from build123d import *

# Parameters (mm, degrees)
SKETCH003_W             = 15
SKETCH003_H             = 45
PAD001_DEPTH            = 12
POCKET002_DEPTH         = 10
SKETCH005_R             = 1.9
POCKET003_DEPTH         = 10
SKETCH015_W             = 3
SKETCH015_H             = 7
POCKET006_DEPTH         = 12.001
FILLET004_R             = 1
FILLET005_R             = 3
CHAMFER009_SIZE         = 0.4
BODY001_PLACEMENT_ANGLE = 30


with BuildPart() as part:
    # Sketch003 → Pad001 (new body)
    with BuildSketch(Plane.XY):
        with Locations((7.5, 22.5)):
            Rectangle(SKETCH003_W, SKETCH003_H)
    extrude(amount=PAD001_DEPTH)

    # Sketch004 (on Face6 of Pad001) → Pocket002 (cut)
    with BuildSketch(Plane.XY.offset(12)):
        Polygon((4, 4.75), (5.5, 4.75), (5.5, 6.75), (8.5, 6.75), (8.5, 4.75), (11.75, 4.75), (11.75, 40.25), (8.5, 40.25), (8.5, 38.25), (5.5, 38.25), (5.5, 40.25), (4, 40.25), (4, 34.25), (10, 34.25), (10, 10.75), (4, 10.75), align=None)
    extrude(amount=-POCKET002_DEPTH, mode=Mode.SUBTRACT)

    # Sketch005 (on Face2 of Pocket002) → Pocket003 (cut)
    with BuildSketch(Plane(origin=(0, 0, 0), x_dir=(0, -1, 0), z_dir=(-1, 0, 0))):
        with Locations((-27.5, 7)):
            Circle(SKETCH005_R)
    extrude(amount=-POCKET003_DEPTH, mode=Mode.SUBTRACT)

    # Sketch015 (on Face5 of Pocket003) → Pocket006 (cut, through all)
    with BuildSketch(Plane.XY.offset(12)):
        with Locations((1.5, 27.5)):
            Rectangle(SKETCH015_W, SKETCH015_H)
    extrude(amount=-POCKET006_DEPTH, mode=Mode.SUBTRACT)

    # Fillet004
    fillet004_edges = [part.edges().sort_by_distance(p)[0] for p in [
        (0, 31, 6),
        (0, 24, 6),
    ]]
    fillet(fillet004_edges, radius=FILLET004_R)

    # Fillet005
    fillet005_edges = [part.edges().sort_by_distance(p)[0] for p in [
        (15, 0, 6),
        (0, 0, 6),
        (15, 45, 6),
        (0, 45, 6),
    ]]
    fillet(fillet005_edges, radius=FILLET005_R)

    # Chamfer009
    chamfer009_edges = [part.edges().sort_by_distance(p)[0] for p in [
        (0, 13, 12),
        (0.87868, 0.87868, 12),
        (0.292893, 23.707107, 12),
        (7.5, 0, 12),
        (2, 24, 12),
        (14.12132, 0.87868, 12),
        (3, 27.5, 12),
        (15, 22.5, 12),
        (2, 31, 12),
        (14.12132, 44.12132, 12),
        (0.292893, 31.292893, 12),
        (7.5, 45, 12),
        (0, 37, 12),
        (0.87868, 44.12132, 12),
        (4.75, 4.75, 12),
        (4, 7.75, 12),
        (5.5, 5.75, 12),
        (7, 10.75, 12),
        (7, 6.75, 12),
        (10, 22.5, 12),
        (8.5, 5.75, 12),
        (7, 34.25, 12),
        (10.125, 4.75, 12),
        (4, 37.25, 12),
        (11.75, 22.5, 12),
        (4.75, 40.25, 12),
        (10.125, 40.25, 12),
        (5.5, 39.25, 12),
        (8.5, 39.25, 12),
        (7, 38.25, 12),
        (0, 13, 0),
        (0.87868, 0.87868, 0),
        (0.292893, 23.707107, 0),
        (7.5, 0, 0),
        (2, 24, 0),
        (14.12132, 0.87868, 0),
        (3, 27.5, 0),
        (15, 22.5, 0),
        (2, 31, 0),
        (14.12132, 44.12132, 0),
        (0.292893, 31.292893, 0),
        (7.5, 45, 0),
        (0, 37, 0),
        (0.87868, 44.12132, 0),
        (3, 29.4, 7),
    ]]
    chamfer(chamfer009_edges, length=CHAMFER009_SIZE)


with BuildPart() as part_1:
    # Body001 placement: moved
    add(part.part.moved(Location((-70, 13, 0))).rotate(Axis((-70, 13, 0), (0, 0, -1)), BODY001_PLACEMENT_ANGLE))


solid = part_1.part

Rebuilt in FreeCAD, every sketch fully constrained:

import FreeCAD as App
import Part
import Sketcher


def edges_at(feature, points):
    """Names of the edges that pass closest to the given points."""
    edges = feature.Shape.Edges
    near = lambda p: min(range(len(edges)), key=lambda i: edges[i].distToShape(Part.Vertex(*p))[0])
    return sorted({f"Edge{near(p) + 1}" for p in points})


def add_polygon(sketch, points):
    """Adds a closed chain of lines whose ends are joined by coincident constraints."""
    first, n = sketch.GeometryCount, len(points)
    for a, b in zip(points, points[1:] + points[:1]):
        sketch.addGeometry(Part.LineSegment(App.Vector(*a, 0), App.Vector(*b, 0)), False)
    for i in range(n):
        sketch.addConstraint(Sketcher.Constraint("Coincident", first + i, 2, first + (i + 1) % n, 1))

doc = App.newDocument("Part")
params = doc.addObject("Spreadsheet::Sheet", "Params")
for row, (alias, value) in enumerate([
    ("sketch1_width", "15 mm"),
    ("sketch1_height", "45 mm"),
    ("pad1_length", "12 mm"),
    ("sketch2_width", "3 mm"),
    ("sketch2_width2", "6 mm"),
    ("sketch2_height", "2 mm"),
    ("sketch2_width3", "1.5 mm"),
    ("sketch2_height2", "35.5 mm"),
    ("pocket1_length", "10 mm"),
    ("sketch3_diameter", "3.8 mm"),
    ("pocket2_length", "10 mm"),
    ("sketch4_width", "3 mm"),
    ("sketch4_height", "7 mm"),
    ("fillet_radius", "1 mm"),
    ("fillet2_radius", "3 mm"),
    ("chamfer_size", "0.4 mm"),
], start=1):
    params.set(f"A{row}", alias)
    params.set(f"B{row}", "=" + value)
    params.setAlias(f"B{row}", alias)

body = doc.addObject("PartDesign::Body", "Body")

sketch1 = body.newObject("Sketcher::SketchObject", "Sketch")
sketch1.AttachmentSupport = (doc.getObject("XY_Plane"), [""])
sketch1.MapMode = "FlatFace"
add_polygon(sketch1, [(0, 45), (0, 0), (15, 0), (15, 45)])
sketch1.addConstraint([
    Sketcher.Constraint("Vertical", 0),
    Sketcher.Constraint("Horizontal", 1),
    Sketcher.Constraint("Vertical", 2),
    Sketcher.Constraint("Horizontal", 3),
    Sketcher.Constraint("Coincident", 0, 2, -1, 1),
    Sketcher.Constraint("DistanceX", 1, 1, 1, 2, 15.0),
    Sketcher.Constraint("DistanceY", 0, 2, 0, 1, 45.0),
])
sketch1.setExpression("Constraints[9]", "Params.sketch1_width")
sketch1.setExpression("Constraints[10]", "Params.sketch1_height")
pad1 = body.newObject("PartDesign::Pad", "Pad")
pad1.Profile = sketch1
pad1.setExpression("Length", "Params.pad1_length")

sketch2 = body.newObject("Sketcher::SketchObject", "Sketch001")
sketch2.AttachmentSupport = (doc.getObject("XY_Plane"), [""])
sketch2.MapMode = "FlatFace"
sketch2.AttachmentOffset = App.Placement(App.Vector(0, 0, 12), App.Rotation())
add_polygon(sketch2, [(4, 4.8), (5.5, 4.8), (5.5, 6.8), (8.5, 6.8), (8.5, 4.8), (11.8, 4.8), (11.8, 40.2), (8.5, 40.2), (8.5, 38.2), (5.5, 38.2), (5.5, 40.2), (4, 40.2), (4, 34.2), (10, 34.2), (10, 10.8), (4, 10.8)])
sketch2.addConstraint([
    Sketcher.Constraint("Horizontal", 0),
    Sketcher.Constraint("Vertical", 1),
    Sketcher.Constraint("Horizontal", 2),
    Sketcher.Constraint("Vertical", 3),
    Sketcher.Constraint("Horizontal", 4),
    Sketcher.Constraint("Vertical", 5),
    Sketcher.Constraint("Horizontal", 6),
    Sketcher.Constraint("Vertical", 7),
    Sketcher.Constraint("Horizontal", 8),
    Sketcher.Constraint("Vertical", 9),
    Sketcher.Constraint("Horizontal", 10),
    Sketcher.Constraint("Vertical", 11),
    Sketcher.Constraint("Horizontal", 12),
    Sketcher.Constraint("Vertical", 13),
    Sketcher.Constraint("Horizontal", 14),
    Sketcher.Constraint("Vertical", 15),
    Sketcher.Constraint("Horizontal", 0, 2, 3, 2),
    Sketcher.Constraint("Horizontal", 6, 2, 9, 2),
    Sketcher.Constraint("Vertical", 3, 2, 6, 2),
    Sketcher.Constraint("Vertical", 1, 2, 8, 2),
    Sketcher.Constraint("Vertical", 11, 2, 14, 2),
    Sketcher.Constraint("Equal", 3, 7),
    Sketcher.Constraint("Equal", 14, 11),
    Sketcher.Constraint("Equal", 11, 15),
    Sketcher.Constraint("DistanceX", 2, 1, 2, 2, 3.0),
    Sketcher.Constraint("DistanceX", 12, 1, 12, 2, 6.0),
    Sketcher.Constraint("DistanceY", 1, 1, 1, 2, 2.0),
    Sketcher.Constraint("DistanceX", 0, 1, 0, 2, 1.5),
    Sketcher.Constraint("DistanceY", 5, 1, 5, 2, 35.5),
    Sketcher.Constraint("DistanceX", -1, 1, 10, 2, 4.0),
    Sketcher.Constraint("DistanceX", 4, 1, 4, 2, 3.25),
    Sketcher.Constraint("DistanceY", -1, 1, 0, 2, 4.75),
])
sketch2.setExpression("Constraints[40]", "Params.sketch2_width")
sketch2.setExpression("Constraints[41]", "Params.sketch2_width2")
sketch2.setExpression("Constraints[42]", "Params.sketch2_height")
sketch2.setExpression("Constraints[43]", "Params.sketch2_width3")
sketch2.setExpression("Constraints[44]", "Params.sketch2_height2")
pocket1 = body.newObject("PartDesign::Pocket", "Pocket")
pocket1.Profile = sketch2
pocket1.setExpression("Length", "Params.pocket1_length")

sketch3 = body.newObject("Sketcher::SketchObject", "Sketch002")
sketch3.AttachmentSupport = (doc.getObject("YZ_Plane"), [""])
sketch3.MapMode = "FlatFace"
sketch3.addGeometry(Part.Circle(App.Vector(27.5, 7, 0), App.Vector(0, 0, 1), 1.9), False)
sketch3.addConstraint([
    Sketcher.Constraint("Diameter", 0, 3.8),
    Sketcher.Constraint("DistanceY", -1, 1, 0, 3, 7.0),
    Sketcher.Constraint("DistanceX", -1, 1, 0, 3, 27.5),
])
sketch3.setExpression("Constraints[0]", "Params.sketch3_diameter")
pocket2 = body.newObject("PartDesign::Pocket", "Pocket001")
pocket2.Profile = sketch3
pocket2.setExpression("Length", "Params.pocket2_length")
pocket2.Reversed = True

sketch4 = body.newObject("Sketcher::SketchObject", "Sketch003")
sketch4.AttachmentSupport = (doc.getObject("XY_Plane"), [""])
sketch4.MapMode = "FlatFace"
sketch4.AttachmentOffset = App.Placement(App.Vector(0, 0, 12), App.Rotation())
add_polygon(sketch4, [(0, 31), (0, 24), (3, 24), (3, 31)])
sketch4.addConstraint([
    Sketcher.Constraint("Vertical", 0),
    Sketcher.Constraint("Horizontal", 1),
    Sketcher.Constraint("Vertical", 2),
    Sketcher.Constraint("Horizontal", 3),
    Sketcher.Constraint("PointOnObject", 0, 2, -2),
    Sketcher.Constraint("DistanceX", 1, 1, 1, 2, 3.0),
    Sketcher.Constraint("DistanceY", 0, 2, 0, 1, 7.0),
    Sketcher.Constraint("DistanceY", -1, 1, 0, 2, 24.0),
])
sketch4.setExpression("Constraints[9]", "Params.sketch4_width")
sketch4.setExpression("Constraints[10]", "Params.sketch4_height")
pocket3 = body.newObject("PartDesign::Pocket", "Pocket002")
pocket3.Profile = sketch4
pocket3.Type = "ThroughAll"
doc.recompute()

fillet = body.newObject("PartDesign::Fillet", "Fillet")
fillet.Base = (pocket3, edges_at(pocket3, [(0, 31, 6), (0, 24, 6)]))
fillet.setExpression("Radius", "Params.fillet_radius")
doc.recompute()

fillet2 = body.newObject("PartDesign::Fillet", "Fillet001")
fillet2.Base = (fillet, edges_at(fillet, [
    (15, 0, 6),
    (0, 0, 6),
    (15, 45, 6),
    (0, 45, 6),
]))
fillet2.setExpression("Radius", "Params.fillet2_radius")
doc.recompute()

chamfer = body.newObject("PartDesign::Chamfer", "Chamfer")
chamfer.Base = (fillet2, edges_at(fillet2, [
    (0, 13, 12),
    (0.879, 0.879, 12),
    (0.293, 23.707, 12),
    (7.5, 0, 12),
    (2, 24, 12),
    (14.121, 0.879, 12),
    (3, 27.5, 12),
    (15, 22.5, 12),
    (2, 31, 12),
    (14.121, 44.121, 12),
    (0.293, 31.293, 12),
    (7.5, 45, 12),
    (0, 37, 12),
    (0.879, 44.121, 12),
    (4.75, 4.75, 12),
    (4, 7.75, 12),
    (5.5, 5.75, 12),
    (7, 10.75, 12),
    (7, 6.75, 12),
    (10, 22.5, 12),
    (8.5, 5.75, 12),
    (7, 34.25, 12),
    (10.125, 4.75, 12),
    (4, 37.25, 12),
    (11.75, 22.5, 12),
    (4.75, 40.25, 12),
    (10.125, 40.25, 12),
    (5.5, 39.25, 12),
    (8.5, 39.25, 12),
    (7, 38.25, 12),
    (0, 13, 0),
    (0.879, 0.879, 0),
    (0.293, 23.707, 0),
    (7.5, 0, 0),
    (2, 24, 0),
    (14.121, 0.879, 0),
    (3, 27.5, 0),
    (15, 22.5, 0),
    (2, 31, 0),
    (14.121, 44.121, 0),
    (0.293, 31.293, 0),
    (7.5, 45, 0),
    (0, 37, 0),
    (0.879, 44.121, 0),
    (3, 29.4, 7),
]))
chamfer.setExpression("Size", "Params.chamfer_size")
body2 = doc.addObject("PartDesign::Body", "Body001")
doc.recompute()

body.Placement = App.Placement(App.Vector(-70, 13, 0), App.Rotation(App.Vector(0, 0, -1), 30))
boolean = body2.newObject("PartDesign::Boolean", "Boolean")
boolean.Type = "Fuse"
boolean.addObjects([body])

doc.recompute()
